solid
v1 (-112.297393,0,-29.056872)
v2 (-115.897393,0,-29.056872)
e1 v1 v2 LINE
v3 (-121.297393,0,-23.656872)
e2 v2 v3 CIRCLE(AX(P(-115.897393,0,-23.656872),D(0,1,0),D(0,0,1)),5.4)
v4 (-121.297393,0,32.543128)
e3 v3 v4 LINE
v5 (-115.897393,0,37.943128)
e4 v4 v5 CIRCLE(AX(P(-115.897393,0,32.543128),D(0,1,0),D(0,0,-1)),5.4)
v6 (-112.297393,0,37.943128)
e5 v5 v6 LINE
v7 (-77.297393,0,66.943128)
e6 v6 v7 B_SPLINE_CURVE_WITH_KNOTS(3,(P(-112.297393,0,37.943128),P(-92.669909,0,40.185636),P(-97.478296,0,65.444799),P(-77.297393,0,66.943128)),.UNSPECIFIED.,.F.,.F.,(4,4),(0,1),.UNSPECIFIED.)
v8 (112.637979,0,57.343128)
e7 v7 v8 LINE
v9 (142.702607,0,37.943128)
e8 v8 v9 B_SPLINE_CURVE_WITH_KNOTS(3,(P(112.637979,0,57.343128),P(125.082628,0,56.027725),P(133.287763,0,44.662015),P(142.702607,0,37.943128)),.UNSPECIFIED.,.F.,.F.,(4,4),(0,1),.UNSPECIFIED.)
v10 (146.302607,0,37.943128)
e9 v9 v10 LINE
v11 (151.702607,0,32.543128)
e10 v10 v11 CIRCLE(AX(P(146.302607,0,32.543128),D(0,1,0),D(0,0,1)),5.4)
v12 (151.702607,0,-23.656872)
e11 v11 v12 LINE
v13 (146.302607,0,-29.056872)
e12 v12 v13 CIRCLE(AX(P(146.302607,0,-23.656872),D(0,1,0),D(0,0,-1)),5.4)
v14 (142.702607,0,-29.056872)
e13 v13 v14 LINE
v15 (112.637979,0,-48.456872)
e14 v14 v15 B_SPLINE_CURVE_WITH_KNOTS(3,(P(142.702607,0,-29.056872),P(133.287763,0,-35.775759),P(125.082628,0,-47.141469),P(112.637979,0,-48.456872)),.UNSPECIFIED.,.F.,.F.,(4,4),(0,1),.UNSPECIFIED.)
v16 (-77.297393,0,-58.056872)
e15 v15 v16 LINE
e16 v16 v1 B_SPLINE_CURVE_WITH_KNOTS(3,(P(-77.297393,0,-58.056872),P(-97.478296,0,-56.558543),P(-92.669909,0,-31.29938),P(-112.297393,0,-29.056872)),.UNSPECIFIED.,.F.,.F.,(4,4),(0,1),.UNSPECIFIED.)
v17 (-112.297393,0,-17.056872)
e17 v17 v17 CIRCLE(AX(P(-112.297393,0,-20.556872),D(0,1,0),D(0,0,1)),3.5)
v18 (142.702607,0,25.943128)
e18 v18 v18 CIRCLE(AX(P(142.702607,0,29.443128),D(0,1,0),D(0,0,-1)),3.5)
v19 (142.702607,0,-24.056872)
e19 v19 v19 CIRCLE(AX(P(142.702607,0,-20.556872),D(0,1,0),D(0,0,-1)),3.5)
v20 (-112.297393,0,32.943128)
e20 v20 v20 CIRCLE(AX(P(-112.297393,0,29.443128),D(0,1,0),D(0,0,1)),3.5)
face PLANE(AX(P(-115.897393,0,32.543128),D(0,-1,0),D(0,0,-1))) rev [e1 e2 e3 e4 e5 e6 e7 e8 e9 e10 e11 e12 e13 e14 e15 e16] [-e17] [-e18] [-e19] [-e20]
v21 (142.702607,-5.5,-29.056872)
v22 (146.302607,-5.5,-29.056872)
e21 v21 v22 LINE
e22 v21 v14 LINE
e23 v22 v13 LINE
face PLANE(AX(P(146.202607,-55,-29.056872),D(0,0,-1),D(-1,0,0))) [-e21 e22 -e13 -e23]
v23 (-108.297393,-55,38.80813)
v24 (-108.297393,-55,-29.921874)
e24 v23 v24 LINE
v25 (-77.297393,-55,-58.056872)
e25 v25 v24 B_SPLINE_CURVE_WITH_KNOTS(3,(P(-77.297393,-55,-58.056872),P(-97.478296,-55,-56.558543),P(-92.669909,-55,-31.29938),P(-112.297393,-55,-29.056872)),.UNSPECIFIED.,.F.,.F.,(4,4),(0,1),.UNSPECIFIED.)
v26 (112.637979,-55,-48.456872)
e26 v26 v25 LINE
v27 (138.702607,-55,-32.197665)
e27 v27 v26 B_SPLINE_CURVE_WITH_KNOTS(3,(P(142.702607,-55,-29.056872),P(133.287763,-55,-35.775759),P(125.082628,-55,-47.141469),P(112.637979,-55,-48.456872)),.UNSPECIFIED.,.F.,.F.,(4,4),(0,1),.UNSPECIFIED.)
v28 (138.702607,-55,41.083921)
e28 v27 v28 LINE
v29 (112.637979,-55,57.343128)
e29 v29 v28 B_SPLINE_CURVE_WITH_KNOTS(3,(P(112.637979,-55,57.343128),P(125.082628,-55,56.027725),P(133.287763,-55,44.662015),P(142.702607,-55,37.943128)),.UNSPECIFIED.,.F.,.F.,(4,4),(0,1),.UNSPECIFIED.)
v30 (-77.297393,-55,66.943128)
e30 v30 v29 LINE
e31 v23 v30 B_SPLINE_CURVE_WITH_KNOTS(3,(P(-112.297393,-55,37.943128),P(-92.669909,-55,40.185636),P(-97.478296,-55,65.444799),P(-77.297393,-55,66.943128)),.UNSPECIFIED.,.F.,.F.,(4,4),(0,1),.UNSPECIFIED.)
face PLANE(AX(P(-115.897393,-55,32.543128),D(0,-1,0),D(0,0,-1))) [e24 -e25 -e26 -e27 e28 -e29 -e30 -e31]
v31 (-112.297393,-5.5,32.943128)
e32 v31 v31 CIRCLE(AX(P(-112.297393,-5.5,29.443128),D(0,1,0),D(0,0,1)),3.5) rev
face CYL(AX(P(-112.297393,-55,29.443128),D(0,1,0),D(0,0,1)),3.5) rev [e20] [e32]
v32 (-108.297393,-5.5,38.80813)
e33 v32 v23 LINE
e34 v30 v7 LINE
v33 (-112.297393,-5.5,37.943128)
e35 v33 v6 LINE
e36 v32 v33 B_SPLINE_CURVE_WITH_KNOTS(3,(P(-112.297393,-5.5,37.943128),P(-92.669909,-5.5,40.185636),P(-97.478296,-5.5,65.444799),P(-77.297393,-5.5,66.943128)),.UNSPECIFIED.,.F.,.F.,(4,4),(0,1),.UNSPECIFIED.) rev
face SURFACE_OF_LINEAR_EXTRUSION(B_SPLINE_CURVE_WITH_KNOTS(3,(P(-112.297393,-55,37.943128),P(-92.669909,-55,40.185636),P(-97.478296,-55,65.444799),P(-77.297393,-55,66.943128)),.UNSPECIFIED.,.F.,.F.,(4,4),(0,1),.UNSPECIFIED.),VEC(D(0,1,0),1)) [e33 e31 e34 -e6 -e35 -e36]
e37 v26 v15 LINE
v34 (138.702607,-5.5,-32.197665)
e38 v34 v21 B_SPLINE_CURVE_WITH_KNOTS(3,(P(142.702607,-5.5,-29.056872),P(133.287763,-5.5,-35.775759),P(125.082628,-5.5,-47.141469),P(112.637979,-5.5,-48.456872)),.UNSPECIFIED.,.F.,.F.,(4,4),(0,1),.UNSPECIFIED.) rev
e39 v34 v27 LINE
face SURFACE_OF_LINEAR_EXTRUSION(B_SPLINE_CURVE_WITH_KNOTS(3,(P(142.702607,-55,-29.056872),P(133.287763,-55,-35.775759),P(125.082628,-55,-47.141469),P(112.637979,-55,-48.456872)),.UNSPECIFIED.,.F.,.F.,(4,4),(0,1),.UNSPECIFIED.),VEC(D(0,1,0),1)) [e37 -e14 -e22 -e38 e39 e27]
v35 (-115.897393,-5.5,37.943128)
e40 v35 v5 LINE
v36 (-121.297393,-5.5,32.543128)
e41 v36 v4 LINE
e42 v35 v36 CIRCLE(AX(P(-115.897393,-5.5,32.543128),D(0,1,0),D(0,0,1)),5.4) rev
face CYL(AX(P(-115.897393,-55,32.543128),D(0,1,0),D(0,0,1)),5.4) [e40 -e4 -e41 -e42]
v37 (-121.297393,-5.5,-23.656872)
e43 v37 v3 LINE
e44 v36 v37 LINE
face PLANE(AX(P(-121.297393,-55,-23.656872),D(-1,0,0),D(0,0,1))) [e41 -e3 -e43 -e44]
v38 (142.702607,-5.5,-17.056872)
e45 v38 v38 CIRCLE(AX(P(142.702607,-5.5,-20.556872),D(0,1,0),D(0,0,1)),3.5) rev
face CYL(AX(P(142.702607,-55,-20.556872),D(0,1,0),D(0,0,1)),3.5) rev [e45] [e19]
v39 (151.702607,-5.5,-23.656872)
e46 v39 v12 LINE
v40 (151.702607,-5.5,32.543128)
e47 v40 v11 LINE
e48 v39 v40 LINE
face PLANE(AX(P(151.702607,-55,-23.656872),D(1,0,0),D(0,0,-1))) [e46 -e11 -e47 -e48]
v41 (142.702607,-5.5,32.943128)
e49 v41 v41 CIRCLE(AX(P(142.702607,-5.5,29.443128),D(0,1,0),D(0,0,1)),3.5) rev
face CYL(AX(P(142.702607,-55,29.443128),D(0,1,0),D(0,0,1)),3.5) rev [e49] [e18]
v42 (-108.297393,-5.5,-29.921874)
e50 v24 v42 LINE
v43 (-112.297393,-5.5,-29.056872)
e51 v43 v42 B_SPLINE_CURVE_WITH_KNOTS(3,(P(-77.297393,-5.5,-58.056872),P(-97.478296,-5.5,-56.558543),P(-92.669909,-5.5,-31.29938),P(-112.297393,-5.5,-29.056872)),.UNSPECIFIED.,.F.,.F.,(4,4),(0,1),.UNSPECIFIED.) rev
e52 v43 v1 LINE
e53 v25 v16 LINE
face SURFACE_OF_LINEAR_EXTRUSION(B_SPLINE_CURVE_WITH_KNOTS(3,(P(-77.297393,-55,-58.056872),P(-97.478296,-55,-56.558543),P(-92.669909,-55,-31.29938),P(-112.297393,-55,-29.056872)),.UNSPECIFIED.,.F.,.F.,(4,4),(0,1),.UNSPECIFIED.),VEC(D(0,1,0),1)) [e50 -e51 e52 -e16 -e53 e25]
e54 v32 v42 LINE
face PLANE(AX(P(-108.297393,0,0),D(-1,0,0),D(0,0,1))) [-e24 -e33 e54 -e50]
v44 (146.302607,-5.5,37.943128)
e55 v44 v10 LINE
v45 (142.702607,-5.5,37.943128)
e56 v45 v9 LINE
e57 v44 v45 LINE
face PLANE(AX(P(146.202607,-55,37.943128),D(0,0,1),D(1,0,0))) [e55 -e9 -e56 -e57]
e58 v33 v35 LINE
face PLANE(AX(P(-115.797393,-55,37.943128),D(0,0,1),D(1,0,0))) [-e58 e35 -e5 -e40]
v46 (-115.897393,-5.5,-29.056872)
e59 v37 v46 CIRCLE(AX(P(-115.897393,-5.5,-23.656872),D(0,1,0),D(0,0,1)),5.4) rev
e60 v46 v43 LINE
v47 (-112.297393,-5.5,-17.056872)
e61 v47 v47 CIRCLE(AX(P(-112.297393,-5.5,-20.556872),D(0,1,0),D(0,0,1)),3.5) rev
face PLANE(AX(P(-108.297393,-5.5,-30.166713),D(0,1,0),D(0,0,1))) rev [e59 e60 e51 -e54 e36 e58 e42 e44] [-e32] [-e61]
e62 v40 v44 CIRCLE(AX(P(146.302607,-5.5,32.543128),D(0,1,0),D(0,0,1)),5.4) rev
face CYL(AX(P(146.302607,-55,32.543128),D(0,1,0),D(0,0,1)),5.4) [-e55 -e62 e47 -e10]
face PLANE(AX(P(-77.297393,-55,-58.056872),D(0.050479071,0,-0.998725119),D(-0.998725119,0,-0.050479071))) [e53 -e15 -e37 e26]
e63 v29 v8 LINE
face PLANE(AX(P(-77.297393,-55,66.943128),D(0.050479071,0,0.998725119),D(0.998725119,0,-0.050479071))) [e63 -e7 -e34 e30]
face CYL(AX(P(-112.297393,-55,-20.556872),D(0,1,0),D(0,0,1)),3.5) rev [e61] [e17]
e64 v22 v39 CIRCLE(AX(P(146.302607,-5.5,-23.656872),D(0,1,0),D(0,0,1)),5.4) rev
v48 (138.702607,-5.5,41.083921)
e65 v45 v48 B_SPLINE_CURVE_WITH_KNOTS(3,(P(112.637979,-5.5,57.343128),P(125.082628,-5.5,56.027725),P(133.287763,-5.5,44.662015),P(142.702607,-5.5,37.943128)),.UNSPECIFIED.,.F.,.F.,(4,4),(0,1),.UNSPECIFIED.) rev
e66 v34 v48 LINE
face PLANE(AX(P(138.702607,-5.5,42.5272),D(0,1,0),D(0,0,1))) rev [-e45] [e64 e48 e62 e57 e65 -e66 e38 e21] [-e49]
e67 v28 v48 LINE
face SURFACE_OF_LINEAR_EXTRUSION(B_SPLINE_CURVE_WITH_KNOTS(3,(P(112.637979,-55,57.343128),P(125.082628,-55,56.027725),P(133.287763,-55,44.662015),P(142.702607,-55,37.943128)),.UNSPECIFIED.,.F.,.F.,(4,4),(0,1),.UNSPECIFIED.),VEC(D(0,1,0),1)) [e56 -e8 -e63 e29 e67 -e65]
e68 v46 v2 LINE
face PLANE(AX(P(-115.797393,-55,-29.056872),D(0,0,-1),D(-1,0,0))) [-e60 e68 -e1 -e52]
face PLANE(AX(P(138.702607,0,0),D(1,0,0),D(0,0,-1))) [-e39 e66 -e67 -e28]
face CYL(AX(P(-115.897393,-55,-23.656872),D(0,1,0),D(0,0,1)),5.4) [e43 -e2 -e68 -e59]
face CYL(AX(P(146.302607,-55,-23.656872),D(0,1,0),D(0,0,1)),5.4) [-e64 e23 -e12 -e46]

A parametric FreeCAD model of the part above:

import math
import FreeCAD as App
import Part
import Sketcher

V = App.Vector
Q = App.Units.Quantity

doc = App.newDocument("Part")
body = doc.addObject("PartDesign::Body", "Body")

sketch1 = body.newObject("Sketcher::SketchObject", "Sketch")
sketch1.AttachmentSupport = (doc.getObject("XZ_Plane"), [""])
sketch1.MapMode = "FlatFace"
sketch1.addGeometry([
    Part.LineSegment(V(-77.297393, 66.943128, 0), V(112.637979, 57.343128, 0)),
    Part.BSplineCurve([V(112.637979, 57.343128, 0), V(125.082628, 56.027725, 0), V(133.287763, 44.662015, 0), V(142.702607, 37.943128, 0)], [4, 4], [0, 1], False, 3, [1, 1, 1, 1], False),
    Part.LineSegment(V(142.702607, 37.943128, 0), V(146.302607, 37.943128, 0)),
    Part.ArcOfCircle(Part.Circle(V(146.302607, 32.543128, 0), V(0, 0, 1), 5.4), math.radians(0), math.radians(90)),
    Part.LineSegment(V(151.702607, 32.543128, 0), V(151.702607, -23.656872, 0)),
    Part.ArcOfCircle(Part.Circle(V(146.302607, -23.656872, 0), V(0, 0, 1), 5.4), math.radians(-90), math.radians(0)),
    Part.LineSegment(V(146.302607, -29.056872, 0), V(142.702607, -29.056872, 0)),
    Part.BSplineCurve([V(112.637979, -48.456872, 0), V(125.082628, -47.141469, 0), V(133.287763, -35.775759, 0), V(142.702607, -29.056872, 0)], [4, 4], [0, 1], False, 3, [1, 1, 1, 1], False),
    Part.LineSegment(V(112.637979, -48.456872, 0), V(-77.297393, -58.056872, 0)),
    Part.BSplineCurve([V(-77.297393, -58.056872, 0), V(-97.478296, -56.558543, 0), V(-92.669909, -31.29938, 0), V(-112.297393, -29.056872, 0)], [4, 4], [0, 1], False, 3, [1, 1, 1, 1], False),
    Part.LineSegment(V(-112.297393, -29.056872, 0), V(-115.897393, -29.056872, 0)),
    Part.ArcOfCircle(Part.Circle(V(-115.897393, -23.656872, 0), V(0, 0, 1), 5.4), math.radians(-180), math.radians(-90)),
    Part.LineSegment(V(-121.297393, -23.656872, 0), V(-121.297393, 32.543128, 0)),
    Part.ArcOfCircle(Part.Circle(V(-115.897393, 32.543128, 0), V(0, 0, 1), 5.4), math.radians(90), math.radians(180)),
    Part.LineSegment(V(-115.897393, 37.943128, 0), V(-112.297393, 37.943128, 0)),
    Part.BSplineCurve([V(-77.297393, 66.943128, 0), V(-97.478296, 65.444799, 0), V(-92.669909, 40.185636, 0), V(-112.297393, 37.943128, 0)], [4, 4], [0, 1], False, 3, [1, 1, 1, 1], False),
    Part.Circle(V(-112.297393, 29.443128, 0), V(0, 0, 1), 3.5),
    Part.Circle(V(142.702607, 29.443128, 0), V(0, 0, 1), 3.5),
    Part.Circle(V(-112.297393, -20.556872, 0), V(0, 0, 1), 3.5),
    Part.Circle(V(142.702607, -20.556872, 0), V(0, 0, 1), 3.5),
], False)
sketch1.addConstraint([
    Sketcher.Constraint("Block", 1),
    Sketcher.Constraint("Block", 7),
    Sketcher.Constraint("Block", 9),
    Sketcher.Constraint("Block", 15),
    Sketcher.Constraint("Coincident", 0, 2, 1, 1),
    Sketcher.Constraint("Coincident", 1, 2, 2, 1),
    Sketcher.Constraint("Tangent", 2, 2, 3, 2),
    Sketcher.Constraint("Tangent", 3, 1, 4, 1),
    Sketcher.Constraint("Tangent", 4, 2, 5, 2),
    Sketcher.Constraint("Tangent", 5, 1, 6, 1),
    Sketcher.Constraint("Coincident", 6, 2, 7, 2),
    Sketcher.Constraint("Coincident", 7, 1, 8, 1),
    Sketcher.Constraint("Coincident", 8, 2, 9, 1),
    Sketcher.Constraint("Coincident", 9, 2, 10, 1),
    Sketcher.Constraint("Tangent", 10, 2, 11, 2),
    Sketcher.Constraint("Tangent", 11, 1, 12, 1),
    Sketcher.Constraint("Tangent", 12, 2, 13, 2),
    Sketcher.Constraint("Tangent", 13, 1, 14, 1),
    Sketcher.Constraint("Coincident", 14, 2, 15, 2),
    Sketcher.Constraint("Coincident", 15, 1, 0, 1),
    Sketcher.Constraint("Horizontal", 2),
    Sketcher.Constraint("Vertical", 4),
    Sketcher.Constraint("Horizontal", 6),
    Sketcher.Constraint("Horizontal", 10),
    Sketcher.Constraint("Vertical", 12),
    Sketcher.Constraint("Horizontal", 14),
    Sketcher.Constraint("Equal", 3, 5),
    Sketcher.Constraint("Equal", 5, 11),
    Sketcher.Constraint("Equal", 11, 13),
    Sketcher.Constraint("Equal", 16, 17),
    Sketcher.Constraint("Equal", 17, 18),
    Sketcher.Constraint("Equal", 18, 19),
    Sketcher.Constraint("Horizontal", 16, 3, 17, 3),
    Sketcher.Constraint("Horizontal", 18, 3, 19, 3),
    Sketcher.Constraint("Vertical", 16, 3, 18, 3),
    Sketcher.Constraint("Vertical", 17, 3, 19, 3),
    Sketcher.Constraint("Vertical", 19, 3, 6, 2),
    Sketcher.Constraint("Vertical", 18, 3, 14, 2),
    Sketcher.Constraint("Equal", 6, 10),
    Sketcher.Constraint("Diameter", 16, Q("7 mm")),
    Sketcher.Constraint("Radius", 3, Q("5.4 mm")),
    Sketcher.Constraint("DistanceX", 2, 1, 2, 2, Q("3.6 mm")),
    Sketcher.Constraint("DistanceY", 18, 3, 16, 3, Q("50 mm")),
    Sketcher.Constraint("DistanceY", 16, 3, 13, 3, Q("3.1 mm")),
])
pad1 = body.newObject("PartDesign::Pad", "Pad")
pad1.Profile = sketch1
pad1.Length = 55

sketch2 = body.newObject("Sketcher::SketchObject", "Sketch001")
sketch2.AttachmentSupport = (doc.getObject("YZ_Plane"), [""])
sketch2.MapMode = "FlatFace"
sketch2.AttachmentOffset = App.Placement(V(0, 0, -121.297393), App.Rotation())
sketch2.addGeometry([
    Part.LineSegment(V(-6, -30, 0), V(-56, -30, 0)),
    Part.LineSegment(V(-56, -30, 0), V(-56, 39, 0)),
    Part.LineSegment(V(-56, 39, 0), V(-6, 39, 0)),
    Part.LineSegment(V(-6, 39, 0), V(-6, -30, 0)),
], False)
sketch2.addConstraint([
    Sketcher.Constraint("Coincident", 0, 2, 1, 1),
    Sketcher.Constraint("Coincident", 1, 2, 2, 1),
    Sketcher.Constraint("Coincident", 2, 2, 3, 1),
    Sketcher.Constraint("Coincident", 3, 2, 0, 1),
    Sketcher.Constraint("Horizontal", 0),
    Sketcher.Constraint("Vertical", 1),
    Sketcher.Constraint("Horizontal", 2),
    Sketcher.Constraint("Vertical", 3),
    Sketcher.Constraint("DistanceX", 2, 2, -1, 1, Q("5.5 mm")),
    Sketcher.Constraint("DistanceX", 0, 2, 0, 1, Q("50.41562 mm")),
    Sketcher.Constraint("DistanceY", 1, 1, 1, 2, Q("68.999652 mm")),
    Sketcher.Constraint("DistanceY", -1, 1, 1, 2, Q("38.832939 mm")),
])
pocket1 = body.newObject("PartDesign::Pocket", "Pocket")
pocket1.Profile = sketch2
pocket1.Length = 13
pocket1.Reversed = True

sketch3 = body.newObject("Sketcher::SketchObject", "Sketch002")
sketch3.AttachmentSupport = (doc.getObject("YZ_Plane"), [""])
sketch3.MapMode = "FlatFace"
sketch3.AttachmentOffset = App.Placement(V(0, 0, 151.702607), App.Rotation())
sketch3.addGeometry([
    Part.LineSegment(V(-6, 43, 0), V(-66, 43, 0)),
    Part.LineSegment(V(-66, 43, 0), V(-66, -32, 0)),
    Part.LineSegment(V(-66, -32, 0), V(-6, -32, 0)),
    Part.LineSegment(V(-6, -32, 0), V(-6, 43, 0)),
], False)
sketch3.addConstraint([
    Sketcher.Constraint("Coincident", 0, 2, 1, 1),
    Sketcher.Constraint("Coincident", 1, 2, 2, 1),
    Sketcher.Constraint("Coincident", 2, 2, 3, 1),
    Sketcher.Constraint("Coincident", 3, 2, 0, 1),
    Sketcher.Constraint("Horizontal", 0),
    Sketcher.Constraint("Vertical", 1),
    Sketcher.Constraint("Horizontal", 2),
    Sketcher.Constraint("Vertical", 3),
    Sketcher.Constraint("DistanceX", 2, 2, -1, 1, Q("5.5 mm")),
    Sketcher.Constraint("DistanceX", 0, 2, 0, 1, Q("60.725118 mm")),
    Sketcher.Constraint("DistanceY", -1, 1, 0, 2, Q("42.5272 mm")),
    Sketcher.Constraint("DistanceY", 1, 2, 1, 1, Q("74.859413 mm")),
])
pocket2 = body.newObject("PartDesign::Pocket", "Pocket001")
pocket2.Profile = sketch3
pocket2.Length = 13

doc.recompute()
